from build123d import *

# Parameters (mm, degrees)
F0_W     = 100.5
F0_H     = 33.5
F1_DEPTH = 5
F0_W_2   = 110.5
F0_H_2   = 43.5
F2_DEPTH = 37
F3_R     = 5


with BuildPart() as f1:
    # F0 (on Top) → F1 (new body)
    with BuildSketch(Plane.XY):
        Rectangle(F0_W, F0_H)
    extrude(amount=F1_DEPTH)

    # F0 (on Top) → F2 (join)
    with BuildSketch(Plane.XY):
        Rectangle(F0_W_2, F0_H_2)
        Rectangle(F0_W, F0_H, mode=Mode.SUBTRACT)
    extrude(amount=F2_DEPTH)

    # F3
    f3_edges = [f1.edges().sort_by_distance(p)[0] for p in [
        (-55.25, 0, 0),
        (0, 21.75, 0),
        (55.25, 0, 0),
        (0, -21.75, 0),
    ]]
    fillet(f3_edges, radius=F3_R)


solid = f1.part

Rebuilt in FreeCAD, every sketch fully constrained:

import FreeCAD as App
import Part
import Sketcher


def edges_at(feature, points):
    """Names of the edges that pass closest to the given points."""
    edges = feature.Shape.Edges
    near = lambda p: min(range(len(edges)), key=lambda i: edges[i].distToShape(Part.Vertex(*p))[0])
    return sorted({f"Edge{near(p) + 1}" for p in points})


def add_polygon(sketch, points):
    """Adds a closed chain of lines whose ends are joined by coincident constraints."""
    first, n = sketch.GeometryCount, len(points)
    for a, b in zip(points, points[1:] + points[:1]):
        sketch.addGeometry(Part.LineSegment(App.Vector(*a, 0), App.Vector(*b, 0)), False)
    for i in range(n):
        sketch.addConstraint(Sketcher.Constraint("Coincident", first + i, 2, first + (i + 1) % n, 1))

doc = App.newDocument("Part")
body = doc.addObject("PartDesign::Body", "Body")

# Sketch on XY plane
sketch1 = body.newObject("Sketcher::SketchObject", "Sketch")
sketch1.AttachmentSupport = (doc.getObject("XY_Plane"), [""])
sketch1.MapMode = "FlatFace"
add_polygon(sketch1, [(-50, 17), (-50, -17), (50, -17), (50, 17)])  # lines 0-3
sketch1.addConstraint([
    Sketcher.Constraint("Vertical", 0),
    Sketcher.Constraint("Horizontal", 1),
    Sketcher.Constraint("Vertical", 2),
    Sketcher.Constraint("Horizontal", 3),
    Sketcher.Constraint("Symmetric", 0, 2, 2, 2, -1, 1),
    Sketcher.Constraint("DistanceX", 1, 1, 1, 2, 100.5),
    Sketcher.Constraint("DistanceY", 0, 2, 0, 1, 33.5),
])
pad1 = body.newObject("PartDesign::Pad", "Pad")
pad1.Profile = sketch1
pad1.Length = 5

# Sketch on XY plane
sketch2 = body.newObject("Sketcher::SketchObject", "Sketch001")
sketch2.AttachmentSupport = (doc.getObject("XY_Plane"), [""])
sketch2.MapMode = "FlatFace"
add_polygon(sketch2, [(-55, 22), (-55, -22), (55, -22), (55, 22)])  # lines 0-3
add_polygon(sketch2, [(50, -17), (-50, -17), (-50, 17), (50, 17)])  # lines 4-7
sketch2.addConstraint([
    Sketcher.Constraint("Vertical", 0),
    Sketcher.Constraint("Horizontal", 1),
    Sketcher.Constraint("Vertical", 2),
    Sketcher.Constraint("Horizontal", 3),
    Sketcher.Constraint("Horizontal", 4),
    Sketcher.Constraint("Vertical", 5),
    Sketcher.Constraint("Horizontal", 6),
    Sketcher.Constraint("Vertical", 7),
    Sketcher.Constraint("Symmetric", 0, 2, 2, 2, -1, 1),
    Sketcher.Constraint("Symmetric", 4, 2, 6, 2, -1, 1),
    Sketcher.Constraint("DistanceX", 1, 1, 1, 2, 110.5),
    Sketcher.Constraint("DistanceX", 4, 2, 4, 1, 100.5),
    Sketcher.Constraint("DistanceY", 0, 2, 0, 1, 43.5),
    Sketcher.Constraint("DistanceY", 5, 1, 5, 2, 33.5),
])
pad2 = body.newObject("PartDesign::Pad", "Pad001")
pad2.Profile = sketch2
pad2.Length = 37
doc.recompute()

fillet = body.newObject("PartDesign::Fillet", "Fillet")
fillet.Base = (pad2, edges_at(pad2, [
    (-55.25, 0, 0),
    (0, 21.75, 0),
    (55.25, 0, 0),
    (0, -21.75, 0),
]))
fillet.Radius = 5

doc.recompute()
